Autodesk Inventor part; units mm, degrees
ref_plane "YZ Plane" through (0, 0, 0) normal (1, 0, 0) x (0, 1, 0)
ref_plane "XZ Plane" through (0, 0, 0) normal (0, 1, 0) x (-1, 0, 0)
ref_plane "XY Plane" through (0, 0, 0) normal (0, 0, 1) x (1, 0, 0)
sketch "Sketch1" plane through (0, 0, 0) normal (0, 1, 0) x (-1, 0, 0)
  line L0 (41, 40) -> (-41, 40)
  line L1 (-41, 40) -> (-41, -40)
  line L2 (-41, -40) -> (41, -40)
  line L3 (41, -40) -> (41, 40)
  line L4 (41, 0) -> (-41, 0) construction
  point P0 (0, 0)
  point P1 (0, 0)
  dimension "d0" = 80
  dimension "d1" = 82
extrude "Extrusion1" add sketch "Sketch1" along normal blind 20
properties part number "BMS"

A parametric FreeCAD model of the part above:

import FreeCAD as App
import Part
import Sketcher
from FreeCAD import Vector


def add_polygon(sketch, points):
    """Adds a closed chain of lines whose ends are joined by coincident constraints."""
    first, n = sketch.GeometryCount, len(points)
    for a, b in zip(points, points[1:] + points[:1]):
        sketch.addGeometry(Part.LineSegment(App.Vector(*a, 0), App.Vector(*b, 0)), False)
    for i in range(n):
        sketch.addConstraint(Sketcher.Constraint("Coincident", first + i, 2, first + (i + 1) % n, 1))

doc = App.newDocument("Part")
params = doc.addObject("Spreadsheet::Sheet", "Params")
for row, (alias, value) in enumerate([
    ("sketch1_width", "82 mm"),
    ("sketch1_height", "80 mm"),
    ("pad1_length", "20 mm"),
], start=1):
    params.set(f"A{row}", alias)
    params.set(f"B{row}", "=" + value)
    params.setAlias(f"B{row}", alias)

body = doc.addObject("PartDesign::Body", "Body")

# Sketch on XZ plane
sketch1 = doc.addObject("Sketcher::SketchObject", "Sketch")
body.addObject(sketch1)
sketch1.AttachmentSupport = (doc.XZ_Plane, [""])
sketch1.MapMode = "FlatFace"
add_polygon(sketch1, [(-41, -40), (-41, 40), (41, 40), (41, -40)])  # lines 0-3
sketch1.addConstraint([
    Sketcher.Constraint("Vertical", 0),
    Sketcher.Constraint("Horizontal", 1),
    Sketcher.Constraint("Vertical", 2),
    Sketcher.Constraint("Horizontal", 3),
    Sketcher.Constraint("Symmetric", 0, 2, 2, 2, -1, 1),
    Sketcher.Constraint("DistanceX", 1, 1, 1, 2, 82.0),
    Sketcher.Constraint("DistanceY", 0, 1, 0, 2, 80.0),
])
sketch1.setExpression("Constraints[9]", "Params.sketch1_width")
sketch1.setExpression("Constraints[10]", "Params.sketch1_height")
pad1 = doc.addObject("PartDesign::Pad", "Pad")
body.addObject(pad1)
pad1.Profile = sketch1
pad1.setExpression("Length", "Params.pad1_length")
pad1.Reversed = True

doc.recompute()
